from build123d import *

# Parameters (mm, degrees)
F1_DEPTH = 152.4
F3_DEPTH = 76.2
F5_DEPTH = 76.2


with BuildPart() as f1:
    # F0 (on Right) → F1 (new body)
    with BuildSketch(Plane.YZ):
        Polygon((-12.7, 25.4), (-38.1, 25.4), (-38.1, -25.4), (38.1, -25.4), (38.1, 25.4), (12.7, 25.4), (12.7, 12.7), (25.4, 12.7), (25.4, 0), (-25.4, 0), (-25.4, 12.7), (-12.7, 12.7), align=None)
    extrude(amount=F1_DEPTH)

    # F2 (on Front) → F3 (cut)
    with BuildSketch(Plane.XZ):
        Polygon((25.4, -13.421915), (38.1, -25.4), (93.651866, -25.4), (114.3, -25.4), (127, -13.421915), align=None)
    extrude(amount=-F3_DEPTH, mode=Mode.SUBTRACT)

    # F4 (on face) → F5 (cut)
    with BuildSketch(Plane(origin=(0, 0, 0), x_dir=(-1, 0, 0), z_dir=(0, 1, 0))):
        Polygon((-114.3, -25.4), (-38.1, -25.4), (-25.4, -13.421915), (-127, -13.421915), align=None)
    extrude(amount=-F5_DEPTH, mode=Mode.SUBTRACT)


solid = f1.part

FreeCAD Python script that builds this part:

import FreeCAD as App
import Part
import Sketcher

V = App.Vector
Q = App.Units.Quantity


def add_polygon(sketch, points):
    """Adds a closed chain of lines whose ends are joined by coincident constraints."""
    first, n = sketch.GeometryCount, len(points)
    for a, b in zip(points, points[1:] + points[:1]):
        sketch.addGeometry(Part.LineSegment(App.Vector(*a, 0), App.Vector(*b, 0)), False)
    for i in range(n):
        sketch.addConstraint(Sketcher.Constraint("Coincident", first + i, 2, first + (i + 1) % n, 1))

doc = App.newDocument("Part")
params = doc.addObject("Spreadsheet::Sheet", "Params")
for row, (alias, value) in enumerate([
    ("sketch1_width", "1 in"),
    ("sketch1_width2", "3 in"),
    ("pad1_length", "6 in"),
    ("sketch2_width", "3 in"),
    ("sketch2_width2", "4 in"),
    ("pocket1_length", "3 in"),
    ("sketch3_width", "3 in"),
    ("sketch3_width2", "4 in"),
    ("pocket2_length", "3 in"),
], start=1):
    params.set(f"A{row}", alias)
    params.set(f"B{row}", "=" + value)
    params.setAlias(f"B{row}", alias)

body = doc.addObject("PartDesign::Body", "Body")

# Sketch on YZ plane
sketch1 = body.newObject("Sketcher::SketchObject", "Sketch")
sketch1.AttachmentSupport = (doc.getObject("YZ_Plane"), [""])
sketch1.MapMode = "FlatFace"
add_polygon(sketch1, [(-13, 25), (-38, 25), (-38, -25), (38, -25), (38, 25), (13, 25), (13, 13), (25, 13), (25, 0), (-25, 0), (-25, 13), (-13, 13)])  # lines 0-11
sketch1.addConstraint(Sketcher.Constraint("Horizontal", 0))
sketch1.addConstraint(Sketcher.Constraint("Vertical", 1))
sketch1.addConstraint(Sketcher.Constraint("Horizontal", 2))
sketch1.addConstraint(Sketcher.Constraint("Vertical", 3))
sketch1.addConstraint(Sketcher.Constraint("Horizontal", 4))
sketch1.addConstraint(Sketcher.Constraint("Vertical", 5))
sketch1.addConstraint(Sketcher.Constraint("Horizontal", 6))
sketch1.addConstraint(Sketcher.Constraint("Vertical", 7))
sketch1.addConstraint(Sketcher.Constraint("Horizontal", 8))
sketch1.addConstraint(Sketcher.Constraint("Vertical", 9))
sketch1.addConstraint(Sketcher.Constraint("Horizontal", 10))
sketch1.addConstraint(Sketcher.Constraint("Vertical", 11))
sketch1.addConstraint(Sketcher.Constraint("Symmetric", 0, 2, 2, 2, -1, 1))
sketch1.addConstraint(Sketcher.Constraint("Symmetric", 7, 2, 8, 2, -1, 1))
sketch1.addConstraint(Sketcher.Constraint("Symmetric", 5, 2, 10, 2, -2))
sketch1.addConstraint(Sketcher.Constraint("Horizontal", 0, 2, 3, 2))
sketch1.addConstraint(Sketcher.Constraint("Equal", 8, 1))
sketch1.addConstraint(Sketcher.Constraint("Equal", 10, 5))
sketch1.addConstraint(Sketcher.Constraint("Equal", 5, 7))
sketch1.addConstraint(Sketcher.Constraint("DistanceX", 0, 2, 0, 1, Q("1 in")))
sketch1.addConstraint(Sketcher.Constraint("DistanceX", 2, 1, 2, 2, Q("3 in")))
sketch1.setExpression("Constraints[31]", "Params.sketch1_width")
sketch1.setExpression("Constraints[32]", "Params.sketch1_width2")
pad1 = body.newObject("PartDesign::Pad", "Pad")
pad1.Profile = sketch1
pad1.setExpression("Length", "Params.pad1_length")

# Sketch on XZ plane
sketch2 = body.newObject("Sketcher::SketchObject", "Sketch001")
sketch2.AttachmentSupport = (doc.getObject("XZ_Plane"), [""])
sketch2.MapMode = "FlatFace"
add_polygon(sketch2, [(25, -13), (38, -25), (114, -25), (127, -13)])  # lines 0-3
sketch2.addConstraint(Sketcher.Constraint("Horizontal", 1))
sketch2.addConstraint(Sketcher.Constraint("Horizontal", 3))
sketch2.addConstraint(Sketcher.Constraint("Equal", 0, 2))
sketch2.addConstraint(Sketcher.Constraint("DistanceX", 1, 1, 1, 2, Q("3 in")))
sketch2.addConstraint(Sketcher.Constraint("DistanceX", 3, 2, 3, 1, Q("4 in")))
sketch2.addConstraint(Sketcher.Constraint("DistanceY", 0, 2, -1, 1, Q("1 in")))
sketch2.addConstraint(Sketcher.Constraint("DistanceX", -1, 1, 2, 2, Q("5 in")))
sketch2.addConstraint(Sketcher.Constraint("Distance", 0, Q("17.457506 mm")))
sketch2.setExpression("Constraints[7]", "Params.sketch2_width")
sketch2.setExpression("Constraints[8]", "Params.sketch2_width2")
pocket1 = body.newObject("PartDesign::Pocket", "Pocket")
pocket1.Profile = sketch2
pocket1.setExpression("Length", "Params.pocket1_length")

# Sketch on XZ plane
sketch3 = body.newObject("Sketcher::SketchObject", "Sketch002")
sketch3.AttachmentSupport = (doc.getObject("XZ_Plane"), [""])
sketch3.MapMode = "FlatFace"
add_polygon(sketch3, [(114, -25), (38, -25), (25, -13), (127, -13)])  # lines 0-3
sketch3.addConstraint(Sketcher.Constraint("Horizontal", 0))
sketch3.addConstraint(Sketcher.Constraint("Horizontal", 2))
sketch3.addConstraint(Sketcher.Constraint("Equal", 1, 3))
sketch3.addConstraint(Sketcher.Constraint("DistanceX", 0, 2, 0, 1, Q("3 in")))
sketch3.addConstraint(Sketcher.Constraint("DistanceX", 2, 1, 2, 2, Q("4 in")))
sketch3.addConstraint(Sketcher.Constraint("DistanceY", 0, 2, -1, 1, Q("1 in")))
sketch3.addConstraint(Sketcher.Constraint("DistanceX", -1, 1, 1, 2, Q("1 in")))
sketch3.addConstraint(Sketcher.Constraint("Distance", 1, Q("17.457506 mm")))
sketch3.setExpression("Constraints[7]", "Params.sketch3_width")
sketch3.setExpression("Constraints[8]", "Params.sketch3_width2")
pocket2 = body.newObject("PartDesign::Pocket", "Pocket001")
pocket2.Profile = sketch3
pocket2.setExpression("Length", "Params.pocket2_length")
pocket2.Reversed = True

doc.recompute()
